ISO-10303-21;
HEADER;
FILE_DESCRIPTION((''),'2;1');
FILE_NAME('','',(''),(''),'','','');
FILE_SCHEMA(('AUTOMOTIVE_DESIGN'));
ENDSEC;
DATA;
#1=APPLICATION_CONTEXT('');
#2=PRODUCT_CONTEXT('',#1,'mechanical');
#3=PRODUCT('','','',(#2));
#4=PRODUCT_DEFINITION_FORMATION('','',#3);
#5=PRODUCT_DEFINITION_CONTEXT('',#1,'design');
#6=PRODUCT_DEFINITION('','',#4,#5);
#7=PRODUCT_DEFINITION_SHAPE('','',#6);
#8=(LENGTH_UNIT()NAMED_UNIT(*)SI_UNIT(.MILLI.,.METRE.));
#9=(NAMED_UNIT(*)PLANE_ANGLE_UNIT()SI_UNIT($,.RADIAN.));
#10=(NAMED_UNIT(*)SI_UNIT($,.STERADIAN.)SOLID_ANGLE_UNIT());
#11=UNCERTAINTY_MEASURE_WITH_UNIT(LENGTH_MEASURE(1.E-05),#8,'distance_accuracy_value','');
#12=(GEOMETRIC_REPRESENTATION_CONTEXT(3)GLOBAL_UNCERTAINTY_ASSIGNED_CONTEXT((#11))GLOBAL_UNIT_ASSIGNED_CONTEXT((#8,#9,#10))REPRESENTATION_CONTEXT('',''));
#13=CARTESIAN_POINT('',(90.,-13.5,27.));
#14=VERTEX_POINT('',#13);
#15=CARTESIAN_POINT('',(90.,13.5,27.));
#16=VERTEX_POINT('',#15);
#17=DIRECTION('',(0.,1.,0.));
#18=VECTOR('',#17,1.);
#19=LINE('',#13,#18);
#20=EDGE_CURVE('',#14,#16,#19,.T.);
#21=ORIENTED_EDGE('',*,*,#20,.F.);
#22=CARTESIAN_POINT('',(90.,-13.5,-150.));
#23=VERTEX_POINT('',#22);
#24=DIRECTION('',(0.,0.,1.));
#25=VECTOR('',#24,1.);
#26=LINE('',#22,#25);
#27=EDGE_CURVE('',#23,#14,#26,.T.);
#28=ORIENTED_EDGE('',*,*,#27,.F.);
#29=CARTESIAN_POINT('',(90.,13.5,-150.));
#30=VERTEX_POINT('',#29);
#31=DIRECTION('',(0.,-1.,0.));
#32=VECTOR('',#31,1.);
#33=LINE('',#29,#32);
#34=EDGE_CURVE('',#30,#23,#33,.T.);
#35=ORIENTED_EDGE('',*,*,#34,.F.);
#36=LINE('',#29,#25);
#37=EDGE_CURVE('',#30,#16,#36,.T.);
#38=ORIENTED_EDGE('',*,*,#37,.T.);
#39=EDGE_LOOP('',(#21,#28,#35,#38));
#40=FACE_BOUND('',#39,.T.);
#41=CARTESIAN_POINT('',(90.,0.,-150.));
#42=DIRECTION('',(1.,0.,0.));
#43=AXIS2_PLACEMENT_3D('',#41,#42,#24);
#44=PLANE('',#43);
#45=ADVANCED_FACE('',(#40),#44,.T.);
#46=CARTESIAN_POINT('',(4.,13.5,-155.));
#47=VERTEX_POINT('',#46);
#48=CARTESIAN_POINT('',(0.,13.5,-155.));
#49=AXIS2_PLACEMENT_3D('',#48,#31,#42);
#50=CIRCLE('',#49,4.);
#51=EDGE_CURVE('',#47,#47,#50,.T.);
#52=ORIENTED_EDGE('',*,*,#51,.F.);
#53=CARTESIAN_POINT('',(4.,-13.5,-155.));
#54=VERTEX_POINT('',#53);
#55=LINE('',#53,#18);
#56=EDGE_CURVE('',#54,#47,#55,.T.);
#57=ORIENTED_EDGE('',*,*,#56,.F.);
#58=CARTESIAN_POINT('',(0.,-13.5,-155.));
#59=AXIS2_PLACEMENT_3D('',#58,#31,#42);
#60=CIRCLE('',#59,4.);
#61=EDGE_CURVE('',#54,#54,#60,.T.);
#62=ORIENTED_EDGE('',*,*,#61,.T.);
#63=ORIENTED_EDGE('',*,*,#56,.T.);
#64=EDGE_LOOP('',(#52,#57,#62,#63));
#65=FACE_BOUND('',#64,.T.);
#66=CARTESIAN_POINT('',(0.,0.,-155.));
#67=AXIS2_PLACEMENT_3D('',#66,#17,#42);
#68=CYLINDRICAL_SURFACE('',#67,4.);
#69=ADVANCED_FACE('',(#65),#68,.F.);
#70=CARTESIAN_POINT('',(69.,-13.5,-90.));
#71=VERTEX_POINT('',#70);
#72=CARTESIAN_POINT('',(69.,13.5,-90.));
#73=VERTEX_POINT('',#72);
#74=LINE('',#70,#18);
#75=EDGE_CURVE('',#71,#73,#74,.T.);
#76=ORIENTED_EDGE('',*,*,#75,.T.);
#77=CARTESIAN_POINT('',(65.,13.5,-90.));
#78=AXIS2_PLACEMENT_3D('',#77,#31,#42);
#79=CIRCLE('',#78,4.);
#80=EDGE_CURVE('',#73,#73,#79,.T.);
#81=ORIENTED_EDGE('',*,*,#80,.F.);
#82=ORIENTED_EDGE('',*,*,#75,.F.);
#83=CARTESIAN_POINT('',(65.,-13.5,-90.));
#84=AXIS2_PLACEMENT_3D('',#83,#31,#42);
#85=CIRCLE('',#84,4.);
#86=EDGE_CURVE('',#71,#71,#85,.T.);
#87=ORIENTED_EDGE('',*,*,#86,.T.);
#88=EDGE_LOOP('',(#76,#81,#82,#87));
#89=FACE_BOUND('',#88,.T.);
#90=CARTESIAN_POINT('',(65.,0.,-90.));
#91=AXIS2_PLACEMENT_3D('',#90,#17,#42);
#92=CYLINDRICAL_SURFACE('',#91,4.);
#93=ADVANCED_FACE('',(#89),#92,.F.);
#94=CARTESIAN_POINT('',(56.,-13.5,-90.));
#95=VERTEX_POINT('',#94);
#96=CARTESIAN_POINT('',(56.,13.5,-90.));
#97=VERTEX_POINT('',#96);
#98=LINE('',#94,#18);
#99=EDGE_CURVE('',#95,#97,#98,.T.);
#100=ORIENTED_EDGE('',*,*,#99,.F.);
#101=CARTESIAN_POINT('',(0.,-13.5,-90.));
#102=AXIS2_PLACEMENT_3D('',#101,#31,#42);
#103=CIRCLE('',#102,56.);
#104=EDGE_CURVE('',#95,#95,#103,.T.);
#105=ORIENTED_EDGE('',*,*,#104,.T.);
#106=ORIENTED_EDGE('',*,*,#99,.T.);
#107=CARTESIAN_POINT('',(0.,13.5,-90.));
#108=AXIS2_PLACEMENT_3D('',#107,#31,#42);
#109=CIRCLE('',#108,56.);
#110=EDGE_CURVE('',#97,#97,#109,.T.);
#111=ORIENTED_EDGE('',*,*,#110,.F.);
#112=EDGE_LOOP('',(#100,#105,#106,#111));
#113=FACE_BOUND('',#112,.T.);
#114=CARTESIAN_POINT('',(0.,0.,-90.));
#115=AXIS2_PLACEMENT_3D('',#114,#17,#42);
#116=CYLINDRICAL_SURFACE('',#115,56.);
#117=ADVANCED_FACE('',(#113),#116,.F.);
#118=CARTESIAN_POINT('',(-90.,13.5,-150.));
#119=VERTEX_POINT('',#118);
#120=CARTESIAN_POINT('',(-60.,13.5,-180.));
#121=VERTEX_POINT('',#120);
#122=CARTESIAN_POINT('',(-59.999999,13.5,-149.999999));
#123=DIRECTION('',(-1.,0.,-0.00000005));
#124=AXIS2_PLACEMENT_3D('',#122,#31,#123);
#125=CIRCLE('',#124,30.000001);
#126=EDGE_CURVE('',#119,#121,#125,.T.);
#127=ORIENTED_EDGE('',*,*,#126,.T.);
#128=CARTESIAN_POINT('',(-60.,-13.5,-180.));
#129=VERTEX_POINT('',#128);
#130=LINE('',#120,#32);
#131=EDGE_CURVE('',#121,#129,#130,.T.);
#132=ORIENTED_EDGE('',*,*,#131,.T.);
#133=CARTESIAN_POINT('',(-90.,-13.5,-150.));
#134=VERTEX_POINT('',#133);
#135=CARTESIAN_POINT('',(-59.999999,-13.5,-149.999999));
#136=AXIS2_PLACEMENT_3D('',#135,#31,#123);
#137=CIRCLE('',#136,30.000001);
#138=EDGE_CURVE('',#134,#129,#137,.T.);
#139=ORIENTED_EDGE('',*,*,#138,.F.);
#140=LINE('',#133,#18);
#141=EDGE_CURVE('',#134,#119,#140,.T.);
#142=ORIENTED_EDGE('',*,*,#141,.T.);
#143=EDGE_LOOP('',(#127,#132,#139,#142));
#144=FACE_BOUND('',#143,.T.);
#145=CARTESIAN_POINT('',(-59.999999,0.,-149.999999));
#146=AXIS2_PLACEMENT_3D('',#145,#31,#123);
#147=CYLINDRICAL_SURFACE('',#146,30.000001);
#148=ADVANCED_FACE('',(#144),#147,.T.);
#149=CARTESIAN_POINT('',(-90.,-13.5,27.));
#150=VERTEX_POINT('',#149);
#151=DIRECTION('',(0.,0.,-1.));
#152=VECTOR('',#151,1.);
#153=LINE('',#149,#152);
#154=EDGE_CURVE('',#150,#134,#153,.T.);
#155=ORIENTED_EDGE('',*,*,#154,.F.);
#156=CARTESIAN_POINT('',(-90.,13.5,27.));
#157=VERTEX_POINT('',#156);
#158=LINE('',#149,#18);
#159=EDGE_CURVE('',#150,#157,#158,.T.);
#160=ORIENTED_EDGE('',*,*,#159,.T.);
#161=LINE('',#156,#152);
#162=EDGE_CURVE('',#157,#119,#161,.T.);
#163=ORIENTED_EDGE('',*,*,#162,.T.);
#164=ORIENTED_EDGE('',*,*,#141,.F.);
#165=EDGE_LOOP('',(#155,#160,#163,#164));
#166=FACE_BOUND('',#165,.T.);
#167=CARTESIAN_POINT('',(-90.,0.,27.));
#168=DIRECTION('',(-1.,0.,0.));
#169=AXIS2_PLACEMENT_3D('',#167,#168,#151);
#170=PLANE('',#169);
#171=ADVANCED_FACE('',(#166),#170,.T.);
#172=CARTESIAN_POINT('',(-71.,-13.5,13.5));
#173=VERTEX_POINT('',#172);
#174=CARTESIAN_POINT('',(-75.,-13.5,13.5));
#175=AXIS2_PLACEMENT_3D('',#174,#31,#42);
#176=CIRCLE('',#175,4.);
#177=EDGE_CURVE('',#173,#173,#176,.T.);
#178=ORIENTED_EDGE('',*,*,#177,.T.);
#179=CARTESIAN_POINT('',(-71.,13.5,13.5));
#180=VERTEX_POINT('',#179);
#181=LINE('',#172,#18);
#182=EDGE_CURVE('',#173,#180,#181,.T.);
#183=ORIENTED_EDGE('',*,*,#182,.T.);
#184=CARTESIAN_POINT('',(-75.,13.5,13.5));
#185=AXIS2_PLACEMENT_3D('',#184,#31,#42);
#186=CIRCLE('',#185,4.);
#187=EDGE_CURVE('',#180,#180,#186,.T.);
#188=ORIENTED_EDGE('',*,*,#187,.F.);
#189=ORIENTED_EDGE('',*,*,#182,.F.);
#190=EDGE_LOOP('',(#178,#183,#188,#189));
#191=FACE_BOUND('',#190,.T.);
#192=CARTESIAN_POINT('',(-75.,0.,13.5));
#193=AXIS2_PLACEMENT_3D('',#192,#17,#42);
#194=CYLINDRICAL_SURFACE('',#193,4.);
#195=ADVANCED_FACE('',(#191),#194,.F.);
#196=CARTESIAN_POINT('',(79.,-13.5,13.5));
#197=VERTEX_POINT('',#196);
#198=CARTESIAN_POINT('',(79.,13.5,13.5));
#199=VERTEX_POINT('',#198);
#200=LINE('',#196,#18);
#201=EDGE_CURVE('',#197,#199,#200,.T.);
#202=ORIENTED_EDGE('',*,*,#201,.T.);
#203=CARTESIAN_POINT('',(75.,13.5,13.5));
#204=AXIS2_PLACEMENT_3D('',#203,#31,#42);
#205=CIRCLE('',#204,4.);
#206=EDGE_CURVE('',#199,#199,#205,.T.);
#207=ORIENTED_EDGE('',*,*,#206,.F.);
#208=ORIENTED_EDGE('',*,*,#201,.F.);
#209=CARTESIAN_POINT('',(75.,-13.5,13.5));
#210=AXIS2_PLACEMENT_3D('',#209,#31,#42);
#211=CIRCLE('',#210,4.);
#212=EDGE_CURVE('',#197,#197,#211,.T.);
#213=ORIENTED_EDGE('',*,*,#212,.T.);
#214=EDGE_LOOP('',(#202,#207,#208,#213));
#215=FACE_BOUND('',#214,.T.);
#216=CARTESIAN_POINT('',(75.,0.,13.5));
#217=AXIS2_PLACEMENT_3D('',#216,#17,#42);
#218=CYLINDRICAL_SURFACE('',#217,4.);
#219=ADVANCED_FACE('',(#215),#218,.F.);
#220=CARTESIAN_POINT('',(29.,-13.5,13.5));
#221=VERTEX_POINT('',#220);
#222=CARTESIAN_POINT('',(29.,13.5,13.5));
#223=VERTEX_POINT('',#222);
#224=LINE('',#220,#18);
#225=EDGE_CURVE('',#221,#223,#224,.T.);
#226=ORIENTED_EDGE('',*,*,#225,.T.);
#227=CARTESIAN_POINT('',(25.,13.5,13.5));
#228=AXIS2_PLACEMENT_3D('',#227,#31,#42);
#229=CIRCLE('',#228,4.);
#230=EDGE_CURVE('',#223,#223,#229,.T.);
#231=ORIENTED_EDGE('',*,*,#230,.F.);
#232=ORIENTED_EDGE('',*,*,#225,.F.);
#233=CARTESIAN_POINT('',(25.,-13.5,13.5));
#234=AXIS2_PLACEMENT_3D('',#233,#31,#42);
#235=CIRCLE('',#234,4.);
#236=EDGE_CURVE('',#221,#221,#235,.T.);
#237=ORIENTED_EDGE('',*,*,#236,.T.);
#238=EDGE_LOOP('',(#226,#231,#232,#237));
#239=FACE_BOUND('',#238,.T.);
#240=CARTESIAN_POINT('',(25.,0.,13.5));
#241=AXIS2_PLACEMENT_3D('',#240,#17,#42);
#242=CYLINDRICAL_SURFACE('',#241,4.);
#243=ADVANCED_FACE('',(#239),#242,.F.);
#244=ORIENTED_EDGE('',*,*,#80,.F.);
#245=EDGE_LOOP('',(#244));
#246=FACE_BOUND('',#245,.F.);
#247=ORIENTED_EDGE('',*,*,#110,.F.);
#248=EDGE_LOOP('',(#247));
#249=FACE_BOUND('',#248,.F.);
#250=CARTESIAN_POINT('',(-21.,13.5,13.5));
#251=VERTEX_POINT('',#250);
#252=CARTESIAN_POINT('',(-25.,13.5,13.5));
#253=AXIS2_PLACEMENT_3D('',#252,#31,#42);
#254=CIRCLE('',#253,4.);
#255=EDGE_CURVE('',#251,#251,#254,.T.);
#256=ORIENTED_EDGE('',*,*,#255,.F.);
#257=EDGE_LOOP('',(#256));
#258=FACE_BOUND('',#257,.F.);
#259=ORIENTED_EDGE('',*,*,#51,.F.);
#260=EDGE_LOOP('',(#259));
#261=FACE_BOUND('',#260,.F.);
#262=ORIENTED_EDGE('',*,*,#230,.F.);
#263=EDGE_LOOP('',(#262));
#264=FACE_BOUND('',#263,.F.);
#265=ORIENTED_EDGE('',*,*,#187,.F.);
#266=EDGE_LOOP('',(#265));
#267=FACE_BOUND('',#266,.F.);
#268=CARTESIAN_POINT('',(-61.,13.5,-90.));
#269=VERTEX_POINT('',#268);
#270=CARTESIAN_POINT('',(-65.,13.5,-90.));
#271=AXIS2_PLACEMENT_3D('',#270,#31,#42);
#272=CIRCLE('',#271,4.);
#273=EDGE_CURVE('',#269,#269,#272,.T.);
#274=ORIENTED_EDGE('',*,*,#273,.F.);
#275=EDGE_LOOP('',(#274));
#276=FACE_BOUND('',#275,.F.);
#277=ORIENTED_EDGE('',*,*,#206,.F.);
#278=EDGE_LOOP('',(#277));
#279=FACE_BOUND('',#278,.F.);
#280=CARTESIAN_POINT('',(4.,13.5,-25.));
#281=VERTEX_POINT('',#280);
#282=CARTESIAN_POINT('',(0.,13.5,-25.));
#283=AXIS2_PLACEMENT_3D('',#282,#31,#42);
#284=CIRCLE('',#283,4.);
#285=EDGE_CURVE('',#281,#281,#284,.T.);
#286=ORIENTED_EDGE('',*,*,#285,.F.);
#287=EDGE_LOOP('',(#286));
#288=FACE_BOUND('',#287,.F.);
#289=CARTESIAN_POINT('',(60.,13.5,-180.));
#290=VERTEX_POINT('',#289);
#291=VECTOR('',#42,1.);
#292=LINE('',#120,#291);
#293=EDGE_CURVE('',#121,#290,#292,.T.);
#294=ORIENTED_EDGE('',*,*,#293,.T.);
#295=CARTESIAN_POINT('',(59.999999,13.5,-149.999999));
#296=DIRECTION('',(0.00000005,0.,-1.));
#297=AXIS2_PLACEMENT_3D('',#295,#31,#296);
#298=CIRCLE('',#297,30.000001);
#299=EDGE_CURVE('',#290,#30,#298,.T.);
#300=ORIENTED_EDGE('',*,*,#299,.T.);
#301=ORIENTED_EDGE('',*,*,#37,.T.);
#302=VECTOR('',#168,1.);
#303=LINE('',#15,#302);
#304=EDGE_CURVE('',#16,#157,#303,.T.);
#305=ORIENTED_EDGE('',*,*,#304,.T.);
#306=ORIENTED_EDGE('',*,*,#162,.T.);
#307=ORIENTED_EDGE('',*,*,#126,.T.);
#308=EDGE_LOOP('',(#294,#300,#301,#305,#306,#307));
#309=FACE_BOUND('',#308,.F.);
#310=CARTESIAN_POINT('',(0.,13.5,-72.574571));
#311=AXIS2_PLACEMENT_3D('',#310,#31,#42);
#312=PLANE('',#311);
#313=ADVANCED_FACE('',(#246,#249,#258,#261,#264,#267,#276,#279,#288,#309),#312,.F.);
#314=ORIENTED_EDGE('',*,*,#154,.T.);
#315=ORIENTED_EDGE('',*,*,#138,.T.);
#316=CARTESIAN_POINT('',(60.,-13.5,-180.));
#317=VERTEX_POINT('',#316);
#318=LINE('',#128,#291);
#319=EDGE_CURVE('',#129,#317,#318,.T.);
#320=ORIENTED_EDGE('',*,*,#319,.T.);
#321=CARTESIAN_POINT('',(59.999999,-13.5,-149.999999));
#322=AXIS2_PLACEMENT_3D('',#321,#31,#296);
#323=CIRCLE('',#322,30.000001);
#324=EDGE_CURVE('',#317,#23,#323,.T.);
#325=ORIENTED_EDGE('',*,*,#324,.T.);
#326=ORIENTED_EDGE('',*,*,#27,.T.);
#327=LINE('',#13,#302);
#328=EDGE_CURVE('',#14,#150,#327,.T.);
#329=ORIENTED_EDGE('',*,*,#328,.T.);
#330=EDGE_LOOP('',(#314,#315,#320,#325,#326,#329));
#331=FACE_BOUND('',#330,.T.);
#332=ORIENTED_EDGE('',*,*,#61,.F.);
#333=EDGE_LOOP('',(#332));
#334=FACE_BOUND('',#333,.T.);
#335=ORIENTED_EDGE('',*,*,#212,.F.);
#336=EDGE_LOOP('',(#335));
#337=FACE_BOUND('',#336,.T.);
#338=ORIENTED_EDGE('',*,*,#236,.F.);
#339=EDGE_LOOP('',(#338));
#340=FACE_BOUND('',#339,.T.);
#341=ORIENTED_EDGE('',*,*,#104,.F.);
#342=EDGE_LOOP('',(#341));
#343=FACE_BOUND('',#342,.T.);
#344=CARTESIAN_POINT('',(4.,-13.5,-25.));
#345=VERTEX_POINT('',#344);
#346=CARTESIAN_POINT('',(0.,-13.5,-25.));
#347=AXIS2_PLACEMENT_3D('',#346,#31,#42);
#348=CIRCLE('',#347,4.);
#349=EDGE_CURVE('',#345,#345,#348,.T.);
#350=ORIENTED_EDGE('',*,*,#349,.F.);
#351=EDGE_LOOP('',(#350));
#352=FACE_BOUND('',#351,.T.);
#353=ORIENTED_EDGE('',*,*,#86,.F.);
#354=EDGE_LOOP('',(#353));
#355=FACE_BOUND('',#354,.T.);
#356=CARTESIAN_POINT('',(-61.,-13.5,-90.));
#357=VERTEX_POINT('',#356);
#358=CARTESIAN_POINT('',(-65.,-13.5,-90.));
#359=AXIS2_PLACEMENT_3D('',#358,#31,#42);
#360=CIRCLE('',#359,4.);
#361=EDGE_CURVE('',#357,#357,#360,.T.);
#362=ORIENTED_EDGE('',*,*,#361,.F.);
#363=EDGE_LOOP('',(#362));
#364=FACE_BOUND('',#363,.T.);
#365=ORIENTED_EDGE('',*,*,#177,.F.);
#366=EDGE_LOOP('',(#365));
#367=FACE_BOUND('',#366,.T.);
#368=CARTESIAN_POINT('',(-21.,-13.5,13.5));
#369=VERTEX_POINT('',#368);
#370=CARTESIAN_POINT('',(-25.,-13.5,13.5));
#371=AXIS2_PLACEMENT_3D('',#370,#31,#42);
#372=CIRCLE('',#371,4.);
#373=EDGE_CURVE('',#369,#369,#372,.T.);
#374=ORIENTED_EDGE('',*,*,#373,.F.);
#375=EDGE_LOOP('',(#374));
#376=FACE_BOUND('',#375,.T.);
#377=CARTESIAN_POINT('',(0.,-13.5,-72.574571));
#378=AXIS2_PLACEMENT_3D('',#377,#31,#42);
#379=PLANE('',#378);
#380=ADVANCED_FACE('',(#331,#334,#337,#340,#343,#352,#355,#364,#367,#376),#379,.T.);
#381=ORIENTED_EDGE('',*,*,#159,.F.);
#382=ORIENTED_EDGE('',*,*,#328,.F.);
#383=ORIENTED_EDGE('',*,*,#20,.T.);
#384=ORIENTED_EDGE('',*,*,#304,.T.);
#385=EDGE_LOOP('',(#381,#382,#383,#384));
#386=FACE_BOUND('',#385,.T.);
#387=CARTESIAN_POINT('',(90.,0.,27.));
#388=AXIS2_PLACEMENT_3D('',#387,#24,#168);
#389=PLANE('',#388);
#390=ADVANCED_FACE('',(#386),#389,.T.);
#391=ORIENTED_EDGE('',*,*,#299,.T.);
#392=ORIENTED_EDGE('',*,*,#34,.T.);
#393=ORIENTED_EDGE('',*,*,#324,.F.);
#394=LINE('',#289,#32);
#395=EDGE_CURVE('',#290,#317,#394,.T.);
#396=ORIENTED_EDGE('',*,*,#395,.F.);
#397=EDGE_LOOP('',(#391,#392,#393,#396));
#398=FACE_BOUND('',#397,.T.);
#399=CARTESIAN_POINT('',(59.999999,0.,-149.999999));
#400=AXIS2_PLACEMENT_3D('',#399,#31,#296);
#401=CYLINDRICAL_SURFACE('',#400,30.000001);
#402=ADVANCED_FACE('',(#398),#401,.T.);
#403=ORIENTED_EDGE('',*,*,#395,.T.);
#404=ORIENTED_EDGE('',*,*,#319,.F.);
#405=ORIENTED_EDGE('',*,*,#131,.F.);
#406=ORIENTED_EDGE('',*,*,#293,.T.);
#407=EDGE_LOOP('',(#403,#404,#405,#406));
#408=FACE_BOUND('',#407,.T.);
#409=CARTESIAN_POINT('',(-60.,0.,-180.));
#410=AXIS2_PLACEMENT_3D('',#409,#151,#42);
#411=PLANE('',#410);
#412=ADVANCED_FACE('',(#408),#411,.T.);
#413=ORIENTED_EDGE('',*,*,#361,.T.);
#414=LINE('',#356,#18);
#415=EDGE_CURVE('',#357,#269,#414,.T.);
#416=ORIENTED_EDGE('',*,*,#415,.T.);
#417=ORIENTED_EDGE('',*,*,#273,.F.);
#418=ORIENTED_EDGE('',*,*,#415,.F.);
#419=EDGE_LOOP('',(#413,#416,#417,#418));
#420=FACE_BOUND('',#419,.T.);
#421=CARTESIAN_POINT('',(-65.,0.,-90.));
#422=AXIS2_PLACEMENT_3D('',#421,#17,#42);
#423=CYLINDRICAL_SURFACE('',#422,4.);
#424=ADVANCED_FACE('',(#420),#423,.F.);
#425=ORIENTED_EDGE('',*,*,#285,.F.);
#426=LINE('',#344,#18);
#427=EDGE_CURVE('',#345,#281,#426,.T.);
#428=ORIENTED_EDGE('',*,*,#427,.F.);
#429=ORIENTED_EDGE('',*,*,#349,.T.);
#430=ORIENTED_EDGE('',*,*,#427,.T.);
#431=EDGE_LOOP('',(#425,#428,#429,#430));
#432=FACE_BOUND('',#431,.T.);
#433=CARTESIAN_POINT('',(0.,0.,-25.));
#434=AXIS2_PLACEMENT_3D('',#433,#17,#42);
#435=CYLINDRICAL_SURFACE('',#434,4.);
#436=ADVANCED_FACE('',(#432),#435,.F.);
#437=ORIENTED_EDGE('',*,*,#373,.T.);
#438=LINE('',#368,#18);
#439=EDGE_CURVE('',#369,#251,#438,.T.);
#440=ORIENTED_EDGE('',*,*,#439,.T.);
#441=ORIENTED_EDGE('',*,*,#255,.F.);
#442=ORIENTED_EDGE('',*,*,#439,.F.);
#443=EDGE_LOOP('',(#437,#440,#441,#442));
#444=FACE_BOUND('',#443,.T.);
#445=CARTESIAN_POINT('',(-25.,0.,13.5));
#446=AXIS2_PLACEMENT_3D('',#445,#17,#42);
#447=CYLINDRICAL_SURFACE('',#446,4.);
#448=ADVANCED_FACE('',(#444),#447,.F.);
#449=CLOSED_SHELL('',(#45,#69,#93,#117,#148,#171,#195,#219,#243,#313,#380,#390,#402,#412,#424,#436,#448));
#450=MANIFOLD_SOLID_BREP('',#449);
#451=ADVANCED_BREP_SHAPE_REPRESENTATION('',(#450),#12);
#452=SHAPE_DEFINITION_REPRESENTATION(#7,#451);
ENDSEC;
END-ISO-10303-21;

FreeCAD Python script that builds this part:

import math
import FreeCAD as App
import Part
import Sketcher
from FreeCAD import Vector

doc = App.newDocument("Part")
body = doc.addObject("PartDesign::Body", "Body")

sketch1 = body.newObject("Sketcher::SketchObject", "Sketch")
sketch1.AttachmentSupport = (doc.getObject("XZ_Plane"), [""])
sketch1.MapMode = "FlatFace"
sketch1.addGeometry([
    Part.ArcOfCircle(Part.Circle(Vector(-60, -150, 0), Vector(0, 0, 1), 30), math.radians(-180), math.radians(-90)),
    Part.LineSegment(Vector(-60, -180, 0), Vector(60, -180, 0)),
    Part.ArcOfCircle(Part.Circle(Vector(60, -150, 0), Vector(0, 0, 1), 30), math.radians(-90), math.radians(0)),
    Part.LineSegment(Vector(90, -150, 0), Vector(90, 27, 0)),
    Part.LineSegment(Vector(90, 27, 0), Vector(-90, 27, 0)),
    Part.LineSegment(Vector(-90, 27, 0), Vector(-90, -150, 0)),
    Part.Circle(Vector(-65, -90, 0), Vector(0, 0, 1), 4),
    Part.Circle(Vector(0, -155, 0), Vector(0, 0, 1), 4),
    Part.Circle(Vector(0, -90, 0), Vector(0, 0, 1), 56),
    Part.Circle(Vector(65, -90, 0), Vector(0, 0, 1), 4),
    Part.Circle(Vector(-75, 13.5, 0), Vector(0, 0, 1), 4),
    Part.Circle(Vector(-25, 13.5, 0), Vector(0, 0, 1), 4),
    Part.Circle(Vector(0, -25, 0), Vector(0, 0, 1), 4),
    Part.Circle(Vector(25, 13.5, 0), Vector(0, 0, 1), 4),
    Part.Circle(Vector(75, 13.5, 0), Vector(0, 0, 1), 4),
], False)
sketch1.addConstraint([
    Sketcher.Constraint("Tangent", 0, 2, 1, 1),
    Sketcher.Constraint("Tangent", 1, 2, 2, 1),
    Sketcher.Constraint("Tangent", 2, 2, 3, 1),
    Sketcher.Constraint("Coincident", 3, 2, 4, 1),
    Sketcher.Constraint("Coincident", 4, 2, 5, 1),
    Sketcher.Constraint("Tangent", 5, 2, 0, 1),
    Sketcher.Constraint("Horizontal", 1),
    Sketcher.Constraint("Vertical", 3),
    Sketcher.Constraint("Horizontal", 4),
    Sketcher.Constraint("Vertical", 5),
    Sketcher.Constraint("Equal", 0, 2),
    Sketcher.Constraint("Equal", 6, 7),
    Sketcher.Constraint("Equal", 7, 9),
    Sketcher.Constraint("Equal", 9, 10),
    Sketcher.Constraint("Equal", 10, 11),
    Sketcher.Constraint("Equal", 11, 12),
    Sketcher.Constraint("Equal", 12, 13),
    Sketcher.Constraint("Equal", 13, 14),
    Sketcher.Constraint("Symmetric", 6, 3, 9, 3, -2),
    Sketcher.Constraint("Symmetric", 11, 3, 13, 3, -2),
    Sketcher.Constraint("Symmetric", 10, 3, 14, 3, -2),
    Sketcher.Constraint("PointOnObject", 7, 3, -2),
    Sketcher.Constraint("PointOnObject", 8, 3, -2),
    Sketcher.Constraint("PointOnObject", 12, 3, -2),
    Sketcher.Constraint("Horizontal", 6, 3, 8, 3),
    Sketcher.Constraint("Horizontal", 10, 3, 11, 3),
    Sketcher.Constraint("Diameter", 6, 8.0),
    Sketcher.Constraint("Diameter", 8, 112.0),
    Sketcher.Constraint("Radius", 0, 30.000001),
    Sketcher.Constraint("DistanceX", 1, 1, 1, 2, 120.0),
    Sketcher.Constraint("DistanceY", 3, 1, 3, 2, 177.0),
    Sketcher.Constraint("DistanceX", 0, 3, -1, 1, 59.999999),
    Sketcher.Constraint("DistanceY", 0, 3, -1, 1, 149.999999),
    Sketcher.Constraint("DistanceX", 6, 3, -1, 1, 65.0),
    Sketcher.Constraint("DistanceY", 6, 3, -1, 1, 90.0),
    Sketcher.Constraint("DistanceY", 7, 3, -1, 1, 155.0),
    Sketcher.Constraint("DistanceX", 10, 3, -1, 1, 75.0),
    Sketcher.Constraint("DistanceX", 11, 3, -1, 1, 25.0),
    Sketcher.Constraint("DistanceY", 12, 3, -1, 1, 25.0),
    Sketcher.Constraint("DistanceY", -1, 1, 10, 3, 13.5),
])
pad1 = body.newObject("PartDesign::Pad", "Pad")
pad1.Profile = sketch1
pad1.Length = 27
pad1.Midplane = True

doc.recompute()
